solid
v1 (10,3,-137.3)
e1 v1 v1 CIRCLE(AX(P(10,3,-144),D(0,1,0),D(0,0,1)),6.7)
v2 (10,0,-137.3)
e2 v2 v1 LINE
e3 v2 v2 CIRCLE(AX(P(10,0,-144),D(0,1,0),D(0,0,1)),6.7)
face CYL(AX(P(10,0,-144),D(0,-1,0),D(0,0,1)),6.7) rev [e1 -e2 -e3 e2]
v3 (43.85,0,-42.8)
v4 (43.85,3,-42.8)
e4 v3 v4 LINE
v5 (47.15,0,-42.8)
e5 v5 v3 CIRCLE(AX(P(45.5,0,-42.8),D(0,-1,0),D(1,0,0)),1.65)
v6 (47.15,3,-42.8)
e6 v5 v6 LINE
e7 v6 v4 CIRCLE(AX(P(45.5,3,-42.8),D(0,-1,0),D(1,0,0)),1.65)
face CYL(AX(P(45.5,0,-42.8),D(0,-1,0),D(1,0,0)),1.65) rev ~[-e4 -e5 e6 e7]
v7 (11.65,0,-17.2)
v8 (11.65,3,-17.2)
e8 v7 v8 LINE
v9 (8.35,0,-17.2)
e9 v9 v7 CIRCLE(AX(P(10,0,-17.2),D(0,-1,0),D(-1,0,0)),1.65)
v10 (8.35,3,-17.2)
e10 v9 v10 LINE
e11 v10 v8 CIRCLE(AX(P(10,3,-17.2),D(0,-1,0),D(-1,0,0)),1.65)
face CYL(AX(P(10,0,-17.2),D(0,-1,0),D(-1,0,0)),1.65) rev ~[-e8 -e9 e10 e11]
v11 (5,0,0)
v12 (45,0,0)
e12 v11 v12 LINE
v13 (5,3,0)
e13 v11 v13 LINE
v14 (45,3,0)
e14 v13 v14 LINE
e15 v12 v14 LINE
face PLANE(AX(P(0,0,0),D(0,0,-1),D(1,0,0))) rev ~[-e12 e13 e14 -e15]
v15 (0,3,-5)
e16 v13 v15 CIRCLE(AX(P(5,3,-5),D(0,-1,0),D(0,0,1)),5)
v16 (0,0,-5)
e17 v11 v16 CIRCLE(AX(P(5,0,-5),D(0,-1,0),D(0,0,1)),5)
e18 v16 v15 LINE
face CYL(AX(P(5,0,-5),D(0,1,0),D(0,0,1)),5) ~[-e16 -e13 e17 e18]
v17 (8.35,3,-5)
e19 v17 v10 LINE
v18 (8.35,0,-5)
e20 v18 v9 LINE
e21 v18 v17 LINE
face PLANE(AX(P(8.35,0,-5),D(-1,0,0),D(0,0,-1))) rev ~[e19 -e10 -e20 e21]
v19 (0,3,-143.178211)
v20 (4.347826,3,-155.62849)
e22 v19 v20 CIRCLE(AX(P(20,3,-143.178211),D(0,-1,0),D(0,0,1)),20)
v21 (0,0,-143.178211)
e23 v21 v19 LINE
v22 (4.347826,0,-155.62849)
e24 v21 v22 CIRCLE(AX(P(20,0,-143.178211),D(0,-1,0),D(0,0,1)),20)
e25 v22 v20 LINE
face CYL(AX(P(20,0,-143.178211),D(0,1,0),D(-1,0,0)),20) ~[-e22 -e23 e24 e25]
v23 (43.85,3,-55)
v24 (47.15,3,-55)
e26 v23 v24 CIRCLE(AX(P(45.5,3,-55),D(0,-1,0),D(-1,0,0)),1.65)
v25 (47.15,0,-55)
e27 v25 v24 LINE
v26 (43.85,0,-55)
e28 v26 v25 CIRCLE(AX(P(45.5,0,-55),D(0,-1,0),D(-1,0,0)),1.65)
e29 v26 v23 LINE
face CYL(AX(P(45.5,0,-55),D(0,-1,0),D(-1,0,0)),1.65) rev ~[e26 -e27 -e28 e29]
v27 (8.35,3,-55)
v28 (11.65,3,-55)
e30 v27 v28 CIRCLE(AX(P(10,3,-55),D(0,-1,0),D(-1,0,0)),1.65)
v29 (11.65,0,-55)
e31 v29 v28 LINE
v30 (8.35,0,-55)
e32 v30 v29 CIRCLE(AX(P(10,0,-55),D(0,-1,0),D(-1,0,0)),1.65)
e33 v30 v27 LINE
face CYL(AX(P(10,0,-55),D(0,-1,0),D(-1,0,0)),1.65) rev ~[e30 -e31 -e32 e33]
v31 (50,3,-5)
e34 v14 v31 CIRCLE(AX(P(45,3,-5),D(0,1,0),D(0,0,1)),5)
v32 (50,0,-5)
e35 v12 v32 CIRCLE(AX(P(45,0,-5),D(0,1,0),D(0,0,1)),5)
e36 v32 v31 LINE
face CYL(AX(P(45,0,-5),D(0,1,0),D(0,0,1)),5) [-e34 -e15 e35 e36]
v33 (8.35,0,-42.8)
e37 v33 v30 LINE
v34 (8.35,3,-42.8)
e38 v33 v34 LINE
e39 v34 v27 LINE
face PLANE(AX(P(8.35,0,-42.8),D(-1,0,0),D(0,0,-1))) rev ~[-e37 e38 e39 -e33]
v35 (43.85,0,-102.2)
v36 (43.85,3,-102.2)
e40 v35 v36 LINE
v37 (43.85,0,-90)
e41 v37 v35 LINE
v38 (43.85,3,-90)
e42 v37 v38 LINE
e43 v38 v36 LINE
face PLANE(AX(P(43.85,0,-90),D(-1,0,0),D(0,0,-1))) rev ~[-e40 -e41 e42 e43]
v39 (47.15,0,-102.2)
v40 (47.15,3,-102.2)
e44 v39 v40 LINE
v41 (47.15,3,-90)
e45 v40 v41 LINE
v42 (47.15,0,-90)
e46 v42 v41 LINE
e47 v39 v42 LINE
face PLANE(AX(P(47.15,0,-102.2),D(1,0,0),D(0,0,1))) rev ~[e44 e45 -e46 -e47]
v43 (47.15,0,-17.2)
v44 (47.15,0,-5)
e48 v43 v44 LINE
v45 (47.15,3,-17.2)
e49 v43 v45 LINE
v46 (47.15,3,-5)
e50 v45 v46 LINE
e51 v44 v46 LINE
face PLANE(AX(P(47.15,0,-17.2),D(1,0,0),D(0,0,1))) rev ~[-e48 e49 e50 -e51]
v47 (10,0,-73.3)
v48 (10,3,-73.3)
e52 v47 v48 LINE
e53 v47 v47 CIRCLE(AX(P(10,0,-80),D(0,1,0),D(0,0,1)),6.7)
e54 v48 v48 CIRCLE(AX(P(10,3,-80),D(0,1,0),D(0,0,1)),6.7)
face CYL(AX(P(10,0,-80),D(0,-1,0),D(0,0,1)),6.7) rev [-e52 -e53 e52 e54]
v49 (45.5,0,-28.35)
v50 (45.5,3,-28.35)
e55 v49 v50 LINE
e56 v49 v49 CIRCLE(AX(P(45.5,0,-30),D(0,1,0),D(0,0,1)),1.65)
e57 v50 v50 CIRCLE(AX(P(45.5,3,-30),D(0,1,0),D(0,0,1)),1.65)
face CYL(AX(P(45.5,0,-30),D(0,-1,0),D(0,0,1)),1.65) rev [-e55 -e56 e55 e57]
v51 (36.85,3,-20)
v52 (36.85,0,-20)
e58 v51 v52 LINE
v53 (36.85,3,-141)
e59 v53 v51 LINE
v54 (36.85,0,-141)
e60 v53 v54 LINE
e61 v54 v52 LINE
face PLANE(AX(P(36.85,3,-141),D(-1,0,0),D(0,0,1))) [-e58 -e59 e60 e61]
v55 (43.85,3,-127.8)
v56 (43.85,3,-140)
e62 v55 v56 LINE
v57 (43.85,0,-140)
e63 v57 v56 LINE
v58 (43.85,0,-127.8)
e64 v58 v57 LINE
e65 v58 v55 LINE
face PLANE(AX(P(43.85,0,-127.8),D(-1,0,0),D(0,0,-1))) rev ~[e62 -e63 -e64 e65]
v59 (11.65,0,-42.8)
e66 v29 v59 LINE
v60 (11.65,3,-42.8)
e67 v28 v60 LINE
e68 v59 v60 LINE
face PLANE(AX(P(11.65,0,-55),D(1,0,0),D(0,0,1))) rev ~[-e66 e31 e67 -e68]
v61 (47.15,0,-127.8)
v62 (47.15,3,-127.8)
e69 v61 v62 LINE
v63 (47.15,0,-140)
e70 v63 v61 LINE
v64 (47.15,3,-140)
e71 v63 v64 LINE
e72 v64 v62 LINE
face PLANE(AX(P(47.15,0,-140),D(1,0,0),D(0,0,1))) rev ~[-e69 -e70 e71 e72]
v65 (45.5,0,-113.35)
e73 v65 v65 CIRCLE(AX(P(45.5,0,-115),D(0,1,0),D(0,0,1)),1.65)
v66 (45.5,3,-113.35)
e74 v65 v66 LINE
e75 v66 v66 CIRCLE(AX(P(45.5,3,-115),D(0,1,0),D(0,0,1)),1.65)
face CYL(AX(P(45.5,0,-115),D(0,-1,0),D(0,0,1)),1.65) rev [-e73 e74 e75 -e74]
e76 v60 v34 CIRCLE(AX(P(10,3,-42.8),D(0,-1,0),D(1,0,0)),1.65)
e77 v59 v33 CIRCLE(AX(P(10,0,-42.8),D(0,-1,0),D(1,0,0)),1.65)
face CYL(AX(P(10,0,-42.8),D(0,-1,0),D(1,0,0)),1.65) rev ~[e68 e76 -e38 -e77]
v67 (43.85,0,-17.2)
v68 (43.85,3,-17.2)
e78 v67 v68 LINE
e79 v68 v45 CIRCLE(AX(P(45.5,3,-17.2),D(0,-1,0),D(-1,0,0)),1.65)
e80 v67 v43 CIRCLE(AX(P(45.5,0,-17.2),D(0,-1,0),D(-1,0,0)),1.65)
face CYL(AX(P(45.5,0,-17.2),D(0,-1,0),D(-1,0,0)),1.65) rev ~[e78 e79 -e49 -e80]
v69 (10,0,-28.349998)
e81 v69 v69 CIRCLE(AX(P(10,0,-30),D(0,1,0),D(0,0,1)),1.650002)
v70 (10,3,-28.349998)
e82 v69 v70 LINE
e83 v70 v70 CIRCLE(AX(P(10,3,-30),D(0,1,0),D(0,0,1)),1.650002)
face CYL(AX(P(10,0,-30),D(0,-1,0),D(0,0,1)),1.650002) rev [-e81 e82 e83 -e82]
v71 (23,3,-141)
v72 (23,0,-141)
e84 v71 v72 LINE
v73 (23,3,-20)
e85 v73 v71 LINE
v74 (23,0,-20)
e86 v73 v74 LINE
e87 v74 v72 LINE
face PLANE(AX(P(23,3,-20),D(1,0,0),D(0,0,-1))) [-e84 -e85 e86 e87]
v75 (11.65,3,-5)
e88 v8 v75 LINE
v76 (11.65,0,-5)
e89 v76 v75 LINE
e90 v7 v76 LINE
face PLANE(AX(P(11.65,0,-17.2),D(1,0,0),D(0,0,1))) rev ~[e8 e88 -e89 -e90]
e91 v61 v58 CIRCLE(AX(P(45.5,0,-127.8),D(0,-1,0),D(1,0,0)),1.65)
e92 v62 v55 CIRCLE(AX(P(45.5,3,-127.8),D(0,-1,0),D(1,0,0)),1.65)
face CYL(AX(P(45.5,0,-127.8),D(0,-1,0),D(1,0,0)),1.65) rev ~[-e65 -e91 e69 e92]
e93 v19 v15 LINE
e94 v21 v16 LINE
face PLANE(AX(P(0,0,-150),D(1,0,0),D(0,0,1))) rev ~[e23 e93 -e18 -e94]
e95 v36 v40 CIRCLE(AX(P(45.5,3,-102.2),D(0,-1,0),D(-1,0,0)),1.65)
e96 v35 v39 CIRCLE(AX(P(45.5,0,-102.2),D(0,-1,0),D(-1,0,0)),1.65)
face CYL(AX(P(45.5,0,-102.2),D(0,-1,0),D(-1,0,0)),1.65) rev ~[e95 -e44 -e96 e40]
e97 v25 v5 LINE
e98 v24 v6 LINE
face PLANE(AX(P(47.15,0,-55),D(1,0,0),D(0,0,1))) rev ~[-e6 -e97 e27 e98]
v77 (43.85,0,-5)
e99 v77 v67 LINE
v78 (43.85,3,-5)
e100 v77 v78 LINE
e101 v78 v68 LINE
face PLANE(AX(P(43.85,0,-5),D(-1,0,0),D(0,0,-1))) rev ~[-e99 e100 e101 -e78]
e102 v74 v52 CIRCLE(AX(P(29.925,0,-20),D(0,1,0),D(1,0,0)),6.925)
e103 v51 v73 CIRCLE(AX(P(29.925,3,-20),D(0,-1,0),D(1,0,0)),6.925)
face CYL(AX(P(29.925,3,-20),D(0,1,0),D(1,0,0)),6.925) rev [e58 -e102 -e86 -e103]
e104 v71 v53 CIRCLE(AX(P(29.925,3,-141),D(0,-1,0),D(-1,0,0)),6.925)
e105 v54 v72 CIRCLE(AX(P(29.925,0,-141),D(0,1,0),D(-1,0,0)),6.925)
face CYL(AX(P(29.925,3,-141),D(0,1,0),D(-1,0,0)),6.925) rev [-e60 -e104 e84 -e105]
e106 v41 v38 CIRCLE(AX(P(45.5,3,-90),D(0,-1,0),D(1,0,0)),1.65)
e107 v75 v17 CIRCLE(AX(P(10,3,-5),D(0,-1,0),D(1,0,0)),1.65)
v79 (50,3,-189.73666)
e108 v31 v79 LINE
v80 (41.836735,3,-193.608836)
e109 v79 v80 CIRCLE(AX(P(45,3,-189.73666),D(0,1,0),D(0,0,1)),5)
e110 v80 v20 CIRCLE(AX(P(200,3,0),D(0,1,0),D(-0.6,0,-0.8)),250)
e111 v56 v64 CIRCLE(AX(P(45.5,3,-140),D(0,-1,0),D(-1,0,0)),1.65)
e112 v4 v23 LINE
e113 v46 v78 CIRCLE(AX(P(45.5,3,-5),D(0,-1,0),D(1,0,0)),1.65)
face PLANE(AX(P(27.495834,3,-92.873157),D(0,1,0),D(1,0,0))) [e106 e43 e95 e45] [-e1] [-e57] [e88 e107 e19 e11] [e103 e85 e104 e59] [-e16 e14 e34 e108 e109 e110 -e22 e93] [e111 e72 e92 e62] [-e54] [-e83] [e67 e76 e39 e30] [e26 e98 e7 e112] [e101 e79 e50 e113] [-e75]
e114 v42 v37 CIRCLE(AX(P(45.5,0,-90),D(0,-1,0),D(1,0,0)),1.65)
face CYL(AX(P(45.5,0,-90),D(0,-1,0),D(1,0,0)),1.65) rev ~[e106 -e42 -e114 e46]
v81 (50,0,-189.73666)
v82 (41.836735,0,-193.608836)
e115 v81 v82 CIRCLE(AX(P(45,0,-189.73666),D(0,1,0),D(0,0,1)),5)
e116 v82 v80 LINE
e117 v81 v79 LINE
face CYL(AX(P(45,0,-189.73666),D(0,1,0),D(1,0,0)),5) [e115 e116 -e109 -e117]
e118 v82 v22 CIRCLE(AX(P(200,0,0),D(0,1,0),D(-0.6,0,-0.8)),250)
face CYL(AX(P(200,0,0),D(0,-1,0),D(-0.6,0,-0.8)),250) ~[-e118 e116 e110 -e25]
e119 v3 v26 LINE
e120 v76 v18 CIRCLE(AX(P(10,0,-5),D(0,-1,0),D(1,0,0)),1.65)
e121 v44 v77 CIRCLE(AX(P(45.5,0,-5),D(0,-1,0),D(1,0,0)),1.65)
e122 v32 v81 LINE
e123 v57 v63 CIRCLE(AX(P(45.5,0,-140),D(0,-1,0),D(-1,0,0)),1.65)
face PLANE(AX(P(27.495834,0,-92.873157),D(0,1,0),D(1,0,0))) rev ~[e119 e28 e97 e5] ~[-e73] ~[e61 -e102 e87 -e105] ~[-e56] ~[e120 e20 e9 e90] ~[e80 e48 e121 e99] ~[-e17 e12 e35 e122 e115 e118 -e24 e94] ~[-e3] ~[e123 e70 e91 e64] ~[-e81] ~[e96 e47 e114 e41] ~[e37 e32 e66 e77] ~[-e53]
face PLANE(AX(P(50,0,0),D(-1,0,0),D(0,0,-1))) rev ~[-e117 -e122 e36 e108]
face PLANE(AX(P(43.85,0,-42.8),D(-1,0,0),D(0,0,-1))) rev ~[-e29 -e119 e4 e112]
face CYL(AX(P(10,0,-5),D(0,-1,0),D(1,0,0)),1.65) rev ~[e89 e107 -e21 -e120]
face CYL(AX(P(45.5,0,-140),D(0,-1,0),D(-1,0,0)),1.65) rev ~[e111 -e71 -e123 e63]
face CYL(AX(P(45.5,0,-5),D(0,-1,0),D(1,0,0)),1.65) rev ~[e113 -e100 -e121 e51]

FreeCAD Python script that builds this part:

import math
import FreeCAD as App
import Part
import Sketcher
from FreeCAD import Vector
Q = App.Units.Quantity


def edges_at(feature, points):
    """Names of the edges that pass closest to the given points."""
    edges = feature.Shape.Edges
    near = lambda p: min(range(len(edges)), key=lambda i: edges[i].distToShape(Part.Vertex(*p))[0])
    return sorted({f"Edge{near(p) + 1}" for p in points})

doc = App.newDocument("Part")
body = doc.addObject("PartDesign::Body", "Body")

# Sketch on XZ plane
sketch1 = body.newObject("Sketcher::SketchObject", "Sketch")
sketch1.AttachmentSupport = (doc.getObject("XZ_Plane"), [""])
sketch1.MapMode = "FlatFace"
sketch1.addGeometry([
    Part.LineSegment(Vector(0, 0, 0), Vector(50, 0, 0)),  # 0
    Part.LineSegment(Vector(50, 0, 0), Vector(50, -200, 0)),  # 1
    Part.ArcOfCircle(Part.Circle(Vector(200, 0, 0), Vector(0, 0, 1), 250), math.radians(-143.130102), math.radians(-126.869898)),  # 2
    Part.LineSegment(Vector(0, -150, 0), Vector(0, 0, 0)),  # 3
    Part.ArcOfCircle(Part.Circle(Vector(10, -5, 0), Vector(0, 0, 1), 1.65), math.radians(0), math.radians(180)),  # 4
    Part.LineSegment(Vector(8.35, -5, 0), Vector(8.35, -17.2, 0)),  # 5
    Part.ArcOfCircle(Part.Circle(Vector(10, -17.2, 0), Vector(0, 0, 1), 1.65), math.radians(180), math.radians(360)),  # 6
    Part.LineSegment(Vector(11.65, -17.2, 0), Vector(11.65, -5, 0)),  # 7
    Part.Circle(Vector(10, -30, 0), Vector(0, 0, 1), 1.650002),  # 8
    Part.ArcOfCircle(Part.Circle(Vector(10, -42.8, 0), Vector(0, 0, 1), 1.65), math.radians(0), math.radians(180)),  # 9
    Part.LineSegment(Vector(8.35, -42.8, 0), Vector(8.35, -55, 0)),  # 10
    Part.ArcOfCircle(Part.Circle(Vector(10, -55, 0), Vector(0, 0, 1), 1.65), math.radians(180), math.radians(360)),  # 11
    Part.LineSegment(Vector(11.65, -55, 0), Vector(11.65, -42.8, 0)),  # 12
    Part.ArcOfCircle(Part.Circle(Vector(45.5, -5, 0), Vector(0, 0, 1), 1.65), math.radians(0), math.radians(180)),  # 13
    Part.LineSegment(Vector(43.85, -5, 0), Vector(43.85, -17.2, 0)),  # 14
    Part.ArcOfCircle(Part.Circle(Vector(45.5, -17.2, 0), Vector(0, 0, 1), 1.65), math.radians(180), math.radians(360)),  # 15
    Part.LineSegment(Vector(47.15, -17.2, 0), Vector(47.15, -5, 0)),  # 16
    Part.Circle(Vector(45.5, -30, 0), Vector(0, 0, 1), 1.65),  # 17
    Part.ArcOfCircle(Part.Circle(Vector(45.5, -42.8, 0), Vector(0, 0, 1), 1.65), math.radians(0), math.radians(180)),  # 18
    Part.LineSegment(Vector(43.85, -42.8, 0), Vector(43.85, -55, 0)),  # 19
    Part.ArcOfCircle(Part.Circle(Vector(45.5, -55, 0), Vector(0, 0, 1), 1.65), math.radians(180), math.radians(360)),  # 20
    Part.LineSegment(Vector(47.15, -55, 0), Vector(47.15, -42.8, 0)),  # 21
    Part.Circle(Vector(10, -80, 0), Vector(0, 0, 1), 6.7),  # 22
    Part.Circle(Vector(10, -144, 0), Vector(0, 0, 1), 6.7),  # 23
    Part.ArcOfCircle(Part.Circle(Vector(45.5, -90, 0), Vector(0, 0, 1), 1.65), math.radians(0), math.radians(180)),  # 24
    Part.LineSegment(Vector(43.85, -90, 0), Vector(43.85, -102.2, 0)),  # 25
    Part.ArcOfCircle(Part.Circle(Vector(45.5, -102.2, 0), Vector(0, 0, 1), 1.65), math.radians(180), math.radians(360)),  # 26
    Part.LineSegment(Vector(47.15, -102.2, 0), Vector(47.15, -90, 0)),  # 27
    Part.Circle(Vector(45.5, -115, 0), Vector(0, 0, 1), 1.65),  # 28
    Part.ArcOfCircle(Part.Circle(Vector(45.5, -127.8, 0), Vector(0, 0, 1), 1.65), math.radians(0), math.radians(180)),  # 29
    Part.LineSegment(Vector(43.85, -127.8, 0), Vector(43.85, -140, 0)),  # 30
    Part.ArcOfCircle(Part.Circle(Vector(45.5, -140, 0), Vector(0, 0, 1), 1.65), math.radians(180), math.radians(360)),  # 31
    Part.LineSegment(Vector(47.15, -140, 0), Vector(47.15, -127.8, 0)),  # 32
], False)
sketch1.addConstraint([
    Sketcher.Constraint("Coincident", 0, 2, 1, 1),
    Sketcher.Constraint("Coincident", 1, 2, 2, 2),
    Sketcher.Constraint("Coincident", 2, 1, 3, 1),
    Sketcher.Constraint("Coincident", 3, 2, 0, 1),
    Sketcher.Constraint("Tangent", 4, 2, 5, 1),
    Sketcher.Constraint("Tangent", 5, 2, 6, 1),
    Sketcher.Constraint("Tangent", 6, 2, 7, 1),
    Sketcher.Constraint("Tangent", 7, 2, 4, 1),
    Sketcher.Constraint("Tangent", 9, 2, 10, 1),
    Sketcher.Constraint("Tangent", 10, 2, 11, 1),
    Sketcher.Constraint("Tangent", 11, 2, 12, 1),
    Sketcher.Constraint("Tangent", 12, 2, 9, 1),
    Sketcher.Constraint("Tangent", 13, 2, 14, 1),
    Sketcher.Constraint("Tangent", 14, 2, 15, 1),
    Sketcher.Constraint("Tangent", 15, 2, 16, 1),
    Sketcher.Constraint("Tangent", 16, 2, 13, 1),
    Sketcher.Constraint("Tangent", 18, 2, 19, 1),
    Sketcher.Constraint("Tangent", 19, 2, 20, 1),
    Sketcher.Constraint("Tangent", 20, 2, 21, 1),
    Sketcher.Constraint("Tangent", 21, 2, 18, 1),
    Sketcher.Constraint("Tangent", 24, 2, 25, 1),
    Sketcher.Constraint("Tangent", 25, 2, 26, 1),
    Sketcher.Constraint("Tangent", 26, 2, 27, 1),
    Sketcher.Constraint("Tangent", 27, 2, 24, 1),
    Sketcher.Constraint("Tangent", 29, 2, 30, 1),
    Sketcher.Constraint("Tangent", 30, 2, 31, 1),
    Sketcher.Constraint("Tangent", 31, 2, 32, 1),
    Sketcher.Constraint("Tangent", 32, 2, 29, 1),
    Sketcher.Constraint("Horizontal", 0),
    Sketcher.Constraint("Vertical", 1),
    Sketcher.Constraint("Vertical", 3),
    Sketcher.Constraint("Vertical", 5),
    Sketcher.Constraint("Vertical", 7),
    Sketcher.Constraint("Vertical", 10),
    Sketcher.Constraint("Vertical", 12),
    Sketcher.Constraint("Vertical", 14),
    Sketcher.Constraint("Vertical", 16),
    Sketcher.Constraint("Vertical", 19),
    Sketcher.Constraint("Vertical", 21),
    Sketcher.Constraint("Vertical", 25),
    Sketcher.Constraint("Vertical", 27),
    Sketcher.Constraint("Vertical", 30),
    Sketcher.Constraint("Vertical", 32),
    Sketcher.Constraint("Coincident", 3, 2, -1, 1),
    Sketcher.Constraint("Equal", 6, 9),
    Sketcher.Constraint("Equal", 11, 13),
    Sketcher.Constraint("Equal", 15, 17),
    Sketcher.Constraint("Equal", 17, 18),
    Sketcher.Constraint("Equal", 22, 23),
    Sketcher.Constraint("Equal", 20, 24),
    Sketcher.Constraint("Equal", 26, 28),
    Sketcher.Constraint("Equal", 28, 29),
    Sketcher.Constraint("PointOnObject", 2, 3, -1),
    Sketcher.Constraint("Horizontal", 4, 3, 13, 3),
    Sketcher.Constraint("Horizontal", 6, 3, 15, 3),
    Sketcher.Constraint("Horizontal", 8, 3, 17, 3),
    Sketcher.Constraint("Horizontal", 9, 3, 18, 3),
    Sketcher.Constraint("Horizontal", 11, 3, 20, 3),
    Sketcher.Constraint("Vertical", 6, 3, 8, 3),
    Sketcher.Constraint("Vertical", 8, 3, 9, 3),
    Sketcher.Constraint("Vertical", 15, 3, 17, 3),
    Sketcher.Constraint("Vertical", 17, 3, 18, 3),
    Sketcher.Constraint("Vertical", 11, 3, 22, 3),
    Sketcher.Constraint("Vertical", 22, 3, 23, 3),
    Sketcher.Constraint("Vertical", 20, 3, 24, 3),
    Sketcher.Constraint("Vertical", 26, 3, 28, 3),
    Sketcher.Constraint("Vertical", 28, 3, 29, 3),
    Sketcher.Constraint("Equal", 7, 10),
    Sketcher.Constraint("Equal", 21, 25),
    Sketcher.Constraint("Equal", 27, 30),
    Sketcher.Constraint("Radius", 2, Q("250 mm")),
    Sketcher.Constraint("Diameter", 17, Q("3.3 mm")),
    Sketcher.Constraint("Diameter", 22, Q("13.4 mm")),
    Sketcher.Constraint("DistanceX", 0, 1, 0, 2, Q("50 mm")),
    Sketcher.Constraint("DistanceY", 1, 2, 1, 1, Q("200 mm")),
    Sketcher.Constraint("DistanceY", 5, 2, 5, 1, Q("12.2 mm")),
    Sketcher.Constraint("DistanceX", -1, 1, 4, 3, Q("10 mm")),
    Sketcher.Constraint("DistanceY", 4, 3, -1, 1, Q("5 mm")),
    Sketcher.Constraint("DistanceY", 8, 3, -1, 1, Q("30 mm")),
    Sketcher.Constraint("DistanceY", 11, 3, -1, 1, Q("55 mm")),
    Sketcher.Constraint("DistanceY", 22, 3, -1, 1, Q("80 mm")),
    Sketcher.Constraint("DistanceY", 23, 3, -1, 1, Q("144 mm")),
    Sketcher.Constraint("DistanceY", 24, 3, -1, 1, Q("90 mm")),
    Sketcher.Constraint("DistanceY", 28, 3, -1, 1, Q("115 mm")),
    Sketcher.Constraint("DistanceY", 31, 3, -1, 1, Q("140 mm")),
    Sketcher.Constraint("DistanceX", -1, 1, 13, 3, Q("45.5 mm")),
    Sketcher.Constraint("Diameter", 8, Q("3.300005 mm")),
])
pad1 = body.newObject("PartDesign::Pad", "Pad")
pad1.Profile = sketch1
pad1.Length = 3
pad1.Reversed = True
doc.recompute()

fillet = body.newObject("PartDesign::Fillet", "Fillet")
fillet.Base = (pad1, edges_at(pad1, [(50, 1.5, -200), (50, 1.5, 0), (0, 1.5, 0)]))
fillet.Radius = 5
doc.recompute()

fillet2 = body.newObject("PartDesign::Fillet", "Fillet001")
fillet2.Base = (fillet, edges_at(fillet, [(0, 1.5, -150)]))
fillet2.Radius = 20

# Sketch on XZ plane
sketch2 = body.newObject("Sketcher::SketchObject", "Sketch001")
sketch2.AttachmentSupport = (doc.getObject("XZ_Plane"), [""])
sketch2.MapMode = "FlatFace"
sketch2.AttachmentOffset = App.Placement(Vector(0, 0, -3), App.Rotation())
sketch2.addGeometry([
    Part.LineSegment(Vector(36.85, -20, 0), Vector(36.85, -141, 0)),
    Part.ArcOfCircle(Part.Circle(Vector(29.925, -141, 0), Vector(0, 0, 1), 6.925), math.radians(180), math.radians(360)),
    Part.LineSegment(Vector(23, -141, 0), Vector(23, -20, 0)),
    Part.ArcOfCircle(Part.Circle(Vector(29.925, -20, 0), Vector(0, 0, 1), 6.925), math.radians(0), math.radians(180)),
], False)
sketch2.addConstraint([
    Sketcher.Constraint("Tangent", 0, 2, 1, 2),
    Sketcher.Constraint("Tangent", 1, 1, 2, 1),
    Sketcher.Constraint("Tangent", 2, 2, 3, 2),
    Sketcher.Constraint("Tangent", 3, 1, 0, 1),
    Sketcher.Constraint("Vertical", 0),
    Sketcher.Constraint("Vertical", 2),
    Sketcher.Constraint("DistanceY", 0, 2, 0, 1, Q("121 mm")),
    Sketcher.Constraint("DistanceY", 1, 3, -1, 1, Q("141 mm")),
    Sketcher.Constraint("DistanceX", -1, 1, 1, 1, Q("23 mm")),
    Sketcher.Constraint("Radius", 1, Q("6.925 mm")),
])
pocket1 = body.newObject("PartDesign::Pocket", "Pocket")
pocket1.Profile = sketch2
pocket1.Type = "ThroughAll"
pocket1.Reversed = True

doc.recompute()
